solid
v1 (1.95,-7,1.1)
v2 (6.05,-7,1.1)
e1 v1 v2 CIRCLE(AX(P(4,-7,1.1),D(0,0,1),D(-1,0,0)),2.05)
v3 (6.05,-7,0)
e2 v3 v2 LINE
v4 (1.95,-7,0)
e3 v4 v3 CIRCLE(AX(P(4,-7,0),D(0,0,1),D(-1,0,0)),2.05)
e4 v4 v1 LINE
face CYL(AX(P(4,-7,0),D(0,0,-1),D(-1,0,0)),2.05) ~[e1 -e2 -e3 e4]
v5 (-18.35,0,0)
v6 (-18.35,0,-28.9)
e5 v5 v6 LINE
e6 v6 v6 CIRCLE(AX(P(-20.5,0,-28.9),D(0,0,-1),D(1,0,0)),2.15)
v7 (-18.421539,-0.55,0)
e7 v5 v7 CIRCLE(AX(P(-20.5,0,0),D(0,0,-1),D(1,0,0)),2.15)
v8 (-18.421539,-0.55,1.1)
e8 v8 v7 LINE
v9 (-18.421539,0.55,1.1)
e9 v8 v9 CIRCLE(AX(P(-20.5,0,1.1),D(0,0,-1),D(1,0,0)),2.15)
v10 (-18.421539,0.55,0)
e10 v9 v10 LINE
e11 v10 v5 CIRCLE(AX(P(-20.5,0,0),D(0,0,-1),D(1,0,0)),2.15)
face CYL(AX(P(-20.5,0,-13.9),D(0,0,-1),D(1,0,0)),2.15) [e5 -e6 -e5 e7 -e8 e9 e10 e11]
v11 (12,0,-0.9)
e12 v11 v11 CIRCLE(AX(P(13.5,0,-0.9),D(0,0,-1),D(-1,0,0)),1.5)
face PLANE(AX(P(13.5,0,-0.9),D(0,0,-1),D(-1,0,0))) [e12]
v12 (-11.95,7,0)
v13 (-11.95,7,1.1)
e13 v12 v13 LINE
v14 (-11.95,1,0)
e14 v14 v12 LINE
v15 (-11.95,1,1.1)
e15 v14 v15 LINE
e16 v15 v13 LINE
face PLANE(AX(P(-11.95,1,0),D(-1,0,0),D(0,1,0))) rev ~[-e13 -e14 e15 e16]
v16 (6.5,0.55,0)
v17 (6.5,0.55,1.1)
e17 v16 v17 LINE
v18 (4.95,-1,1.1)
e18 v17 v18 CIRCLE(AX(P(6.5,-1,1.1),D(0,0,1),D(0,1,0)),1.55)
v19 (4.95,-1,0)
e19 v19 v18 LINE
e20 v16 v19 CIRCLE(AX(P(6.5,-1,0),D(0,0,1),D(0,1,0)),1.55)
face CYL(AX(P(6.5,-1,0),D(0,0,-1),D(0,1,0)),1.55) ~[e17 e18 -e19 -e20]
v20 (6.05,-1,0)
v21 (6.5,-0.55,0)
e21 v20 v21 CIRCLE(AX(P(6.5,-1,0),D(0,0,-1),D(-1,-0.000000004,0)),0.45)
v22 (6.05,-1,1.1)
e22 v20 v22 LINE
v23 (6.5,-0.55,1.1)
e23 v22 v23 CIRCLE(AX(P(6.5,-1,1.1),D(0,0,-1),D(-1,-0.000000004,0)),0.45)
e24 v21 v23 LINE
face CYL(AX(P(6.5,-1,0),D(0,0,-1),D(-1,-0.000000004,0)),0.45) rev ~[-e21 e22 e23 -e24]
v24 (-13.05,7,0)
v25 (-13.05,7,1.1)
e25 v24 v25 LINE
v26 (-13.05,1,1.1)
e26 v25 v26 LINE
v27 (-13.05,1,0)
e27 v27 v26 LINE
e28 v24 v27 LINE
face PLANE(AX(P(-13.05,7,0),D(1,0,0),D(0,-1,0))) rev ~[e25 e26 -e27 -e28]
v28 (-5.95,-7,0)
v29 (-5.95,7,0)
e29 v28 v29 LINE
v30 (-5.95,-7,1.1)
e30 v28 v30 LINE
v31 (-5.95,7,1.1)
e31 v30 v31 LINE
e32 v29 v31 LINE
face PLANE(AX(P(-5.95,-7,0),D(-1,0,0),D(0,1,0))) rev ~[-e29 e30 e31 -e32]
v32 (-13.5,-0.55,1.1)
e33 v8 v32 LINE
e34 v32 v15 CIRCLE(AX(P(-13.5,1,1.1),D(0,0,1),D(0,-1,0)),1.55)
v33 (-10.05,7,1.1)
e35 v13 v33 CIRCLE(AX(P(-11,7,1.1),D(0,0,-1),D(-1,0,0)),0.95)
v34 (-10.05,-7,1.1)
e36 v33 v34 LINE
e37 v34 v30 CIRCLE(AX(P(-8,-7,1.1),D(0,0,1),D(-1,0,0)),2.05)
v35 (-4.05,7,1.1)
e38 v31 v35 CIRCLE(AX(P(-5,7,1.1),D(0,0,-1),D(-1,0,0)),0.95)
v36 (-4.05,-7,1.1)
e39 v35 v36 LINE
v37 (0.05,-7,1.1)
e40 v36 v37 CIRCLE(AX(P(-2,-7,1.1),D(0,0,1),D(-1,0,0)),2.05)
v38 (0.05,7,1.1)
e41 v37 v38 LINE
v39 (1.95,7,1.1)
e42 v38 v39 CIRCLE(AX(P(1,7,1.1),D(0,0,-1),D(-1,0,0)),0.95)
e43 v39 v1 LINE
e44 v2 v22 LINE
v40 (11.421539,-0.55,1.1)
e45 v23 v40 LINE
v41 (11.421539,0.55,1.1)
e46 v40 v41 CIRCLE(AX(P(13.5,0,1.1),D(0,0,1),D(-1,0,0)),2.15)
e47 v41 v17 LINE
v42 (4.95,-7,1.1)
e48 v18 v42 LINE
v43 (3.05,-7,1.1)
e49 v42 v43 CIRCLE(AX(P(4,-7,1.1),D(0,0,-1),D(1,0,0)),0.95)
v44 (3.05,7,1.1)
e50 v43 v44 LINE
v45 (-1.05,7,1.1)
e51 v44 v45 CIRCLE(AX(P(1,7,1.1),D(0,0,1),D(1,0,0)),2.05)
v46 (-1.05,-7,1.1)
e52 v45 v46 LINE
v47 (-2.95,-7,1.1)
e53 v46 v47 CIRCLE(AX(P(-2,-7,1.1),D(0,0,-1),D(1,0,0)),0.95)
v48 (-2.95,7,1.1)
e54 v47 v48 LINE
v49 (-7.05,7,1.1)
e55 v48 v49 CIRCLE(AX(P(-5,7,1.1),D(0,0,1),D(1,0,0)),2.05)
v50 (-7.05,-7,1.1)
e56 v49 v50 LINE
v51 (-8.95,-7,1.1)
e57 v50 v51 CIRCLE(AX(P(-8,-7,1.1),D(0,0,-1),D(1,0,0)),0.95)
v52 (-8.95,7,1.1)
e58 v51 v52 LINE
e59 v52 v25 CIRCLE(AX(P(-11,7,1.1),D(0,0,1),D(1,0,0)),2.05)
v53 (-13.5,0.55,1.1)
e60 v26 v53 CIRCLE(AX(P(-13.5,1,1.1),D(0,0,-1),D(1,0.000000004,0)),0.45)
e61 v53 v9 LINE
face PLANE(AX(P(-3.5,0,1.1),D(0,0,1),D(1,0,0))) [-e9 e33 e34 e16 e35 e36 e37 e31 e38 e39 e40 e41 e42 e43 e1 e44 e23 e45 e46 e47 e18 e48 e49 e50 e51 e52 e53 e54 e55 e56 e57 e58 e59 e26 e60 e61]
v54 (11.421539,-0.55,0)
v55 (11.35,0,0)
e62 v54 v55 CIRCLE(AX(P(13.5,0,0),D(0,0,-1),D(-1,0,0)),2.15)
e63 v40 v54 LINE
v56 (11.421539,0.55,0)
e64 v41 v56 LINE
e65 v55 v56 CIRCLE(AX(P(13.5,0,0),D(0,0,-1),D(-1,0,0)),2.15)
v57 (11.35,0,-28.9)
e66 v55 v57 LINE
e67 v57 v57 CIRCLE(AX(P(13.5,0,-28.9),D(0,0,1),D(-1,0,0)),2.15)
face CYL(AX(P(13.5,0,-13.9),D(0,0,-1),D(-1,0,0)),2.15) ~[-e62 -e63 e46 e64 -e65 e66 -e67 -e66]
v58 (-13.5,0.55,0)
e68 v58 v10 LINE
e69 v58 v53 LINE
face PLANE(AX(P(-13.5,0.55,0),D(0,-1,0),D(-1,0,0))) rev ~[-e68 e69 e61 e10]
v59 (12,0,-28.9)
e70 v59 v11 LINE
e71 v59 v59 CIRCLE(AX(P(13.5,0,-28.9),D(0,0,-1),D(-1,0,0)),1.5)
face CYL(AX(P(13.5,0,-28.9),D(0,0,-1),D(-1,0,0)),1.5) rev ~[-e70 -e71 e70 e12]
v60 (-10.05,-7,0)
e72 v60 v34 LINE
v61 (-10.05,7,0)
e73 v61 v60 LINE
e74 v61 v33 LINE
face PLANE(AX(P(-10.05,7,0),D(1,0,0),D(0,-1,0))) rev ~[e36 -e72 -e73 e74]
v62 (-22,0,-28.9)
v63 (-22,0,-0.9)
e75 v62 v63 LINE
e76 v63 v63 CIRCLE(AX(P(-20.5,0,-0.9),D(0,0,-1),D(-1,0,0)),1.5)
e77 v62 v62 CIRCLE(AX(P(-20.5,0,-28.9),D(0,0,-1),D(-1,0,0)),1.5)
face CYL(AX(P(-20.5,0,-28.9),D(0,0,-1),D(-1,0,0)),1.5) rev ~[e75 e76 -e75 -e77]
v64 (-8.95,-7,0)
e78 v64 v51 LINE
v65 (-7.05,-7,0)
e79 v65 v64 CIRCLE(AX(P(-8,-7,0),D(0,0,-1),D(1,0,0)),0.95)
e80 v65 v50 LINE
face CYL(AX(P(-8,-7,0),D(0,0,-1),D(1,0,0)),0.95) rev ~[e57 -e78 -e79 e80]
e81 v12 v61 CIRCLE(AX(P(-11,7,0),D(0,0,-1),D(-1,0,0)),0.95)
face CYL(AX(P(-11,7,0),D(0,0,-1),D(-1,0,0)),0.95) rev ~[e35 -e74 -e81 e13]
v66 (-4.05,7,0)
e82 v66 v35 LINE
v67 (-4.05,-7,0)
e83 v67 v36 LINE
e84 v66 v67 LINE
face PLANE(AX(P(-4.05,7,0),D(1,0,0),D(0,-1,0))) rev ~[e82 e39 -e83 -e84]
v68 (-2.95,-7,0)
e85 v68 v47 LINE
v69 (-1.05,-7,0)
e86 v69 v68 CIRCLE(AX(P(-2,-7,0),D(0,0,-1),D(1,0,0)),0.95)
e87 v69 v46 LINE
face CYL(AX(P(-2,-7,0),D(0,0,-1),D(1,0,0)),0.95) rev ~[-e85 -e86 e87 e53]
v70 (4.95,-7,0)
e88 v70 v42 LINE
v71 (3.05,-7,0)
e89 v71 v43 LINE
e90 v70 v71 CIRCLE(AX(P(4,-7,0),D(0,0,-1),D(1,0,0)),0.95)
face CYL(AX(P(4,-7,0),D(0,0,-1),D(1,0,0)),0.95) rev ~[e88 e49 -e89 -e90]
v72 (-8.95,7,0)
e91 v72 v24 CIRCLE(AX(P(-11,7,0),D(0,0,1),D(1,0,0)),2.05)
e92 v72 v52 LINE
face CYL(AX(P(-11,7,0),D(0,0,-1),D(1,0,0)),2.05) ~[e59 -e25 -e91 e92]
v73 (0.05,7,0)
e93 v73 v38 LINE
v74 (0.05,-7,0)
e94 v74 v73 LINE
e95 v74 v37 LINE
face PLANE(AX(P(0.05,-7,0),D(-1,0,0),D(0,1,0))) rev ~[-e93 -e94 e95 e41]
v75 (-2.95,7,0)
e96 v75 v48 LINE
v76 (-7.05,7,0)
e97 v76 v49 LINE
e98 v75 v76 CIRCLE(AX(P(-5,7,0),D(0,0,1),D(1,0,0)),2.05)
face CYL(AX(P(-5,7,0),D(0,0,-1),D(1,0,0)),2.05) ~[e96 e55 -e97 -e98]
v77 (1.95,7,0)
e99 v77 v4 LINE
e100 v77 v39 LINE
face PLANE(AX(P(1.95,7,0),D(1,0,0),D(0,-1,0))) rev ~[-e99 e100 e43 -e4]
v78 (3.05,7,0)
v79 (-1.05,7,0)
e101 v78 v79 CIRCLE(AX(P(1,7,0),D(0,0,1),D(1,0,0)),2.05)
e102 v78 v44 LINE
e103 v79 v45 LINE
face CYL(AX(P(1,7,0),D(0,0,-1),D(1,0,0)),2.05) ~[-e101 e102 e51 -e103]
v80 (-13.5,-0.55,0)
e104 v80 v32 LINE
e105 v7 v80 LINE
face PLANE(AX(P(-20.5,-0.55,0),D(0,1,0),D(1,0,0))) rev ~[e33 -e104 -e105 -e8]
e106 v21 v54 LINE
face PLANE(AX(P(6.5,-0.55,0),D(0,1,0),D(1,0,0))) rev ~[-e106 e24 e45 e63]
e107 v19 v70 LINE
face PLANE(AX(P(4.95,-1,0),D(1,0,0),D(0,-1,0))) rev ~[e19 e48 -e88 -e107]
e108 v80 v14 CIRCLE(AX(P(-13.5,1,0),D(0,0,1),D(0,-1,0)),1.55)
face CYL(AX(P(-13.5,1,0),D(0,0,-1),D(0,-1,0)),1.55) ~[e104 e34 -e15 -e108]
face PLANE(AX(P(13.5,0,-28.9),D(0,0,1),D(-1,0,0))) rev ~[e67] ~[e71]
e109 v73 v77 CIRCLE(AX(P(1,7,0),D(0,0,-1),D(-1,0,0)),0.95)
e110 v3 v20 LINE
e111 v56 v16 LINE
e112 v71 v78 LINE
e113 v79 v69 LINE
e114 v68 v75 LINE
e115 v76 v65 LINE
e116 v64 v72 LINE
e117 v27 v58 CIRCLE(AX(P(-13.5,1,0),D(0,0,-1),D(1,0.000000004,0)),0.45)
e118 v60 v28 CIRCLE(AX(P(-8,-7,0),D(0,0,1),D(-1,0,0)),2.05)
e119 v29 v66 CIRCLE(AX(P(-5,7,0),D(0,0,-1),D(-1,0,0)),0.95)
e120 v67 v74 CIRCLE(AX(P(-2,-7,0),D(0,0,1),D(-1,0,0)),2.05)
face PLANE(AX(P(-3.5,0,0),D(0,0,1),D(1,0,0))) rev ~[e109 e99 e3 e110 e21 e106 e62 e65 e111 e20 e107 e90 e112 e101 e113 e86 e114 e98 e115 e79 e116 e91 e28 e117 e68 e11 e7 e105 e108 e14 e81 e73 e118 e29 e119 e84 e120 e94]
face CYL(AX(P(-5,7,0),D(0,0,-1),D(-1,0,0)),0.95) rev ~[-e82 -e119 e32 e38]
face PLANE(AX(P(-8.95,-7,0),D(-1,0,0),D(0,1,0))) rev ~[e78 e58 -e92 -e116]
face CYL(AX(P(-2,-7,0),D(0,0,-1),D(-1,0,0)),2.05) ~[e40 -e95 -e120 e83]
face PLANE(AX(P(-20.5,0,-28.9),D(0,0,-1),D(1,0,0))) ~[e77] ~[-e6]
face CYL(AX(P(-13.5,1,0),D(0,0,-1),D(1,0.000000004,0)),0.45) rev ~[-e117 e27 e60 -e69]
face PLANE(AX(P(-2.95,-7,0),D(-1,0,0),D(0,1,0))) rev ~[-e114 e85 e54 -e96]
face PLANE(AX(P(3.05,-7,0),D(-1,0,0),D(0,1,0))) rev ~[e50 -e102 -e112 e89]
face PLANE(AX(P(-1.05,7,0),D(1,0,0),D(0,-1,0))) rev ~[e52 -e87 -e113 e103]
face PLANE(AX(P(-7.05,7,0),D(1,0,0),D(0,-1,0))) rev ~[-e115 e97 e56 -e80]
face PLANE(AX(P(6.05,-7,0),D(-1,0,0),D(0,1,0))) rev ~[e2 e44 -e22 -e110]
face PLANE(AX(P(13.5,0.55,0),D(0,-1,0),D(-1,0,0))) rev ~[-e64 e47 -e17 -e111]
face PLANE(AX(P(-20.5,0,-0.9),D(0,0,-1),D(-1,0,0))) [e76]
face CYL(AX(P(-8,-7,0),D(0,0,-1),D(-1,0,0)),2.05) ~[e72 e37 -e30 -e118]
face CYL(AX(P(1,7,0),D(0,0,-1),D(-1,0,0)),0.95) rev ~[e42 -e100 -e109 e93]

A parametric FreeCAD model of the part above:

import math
import FreeCAD as App
import Part
import Sketcher

V = App.Vector
Q = App.Units.Quantity


def add_polygon(sketch, points):
    """Adds a closed chain of lines whose ends are joined by coincident constraints."""
    first, n = sketch.GeometryCount, len(points)
    for a, b in zip(points, points[1:] + points[:1]):
        sketch.addGeometry(Part.LineSegment(App.Vector(*a, 0), App.Vector(*b, 0)), False)
    for i in range(n):
        sketch.addConstraint(Sketcher.Constraint("Coincident", first + i, 2, first + (i + 1) % n, 1))

doc = App.newDocument("Part")
body = doc.addObject("PartDesign::Body", "Body")

sketch1 = body.newObject("Sketcher::SketchObject", "Sketch")
sketch1.AttachmentSupport = (doc.getObject("XY_Plane"), [""])
sketch1.MapMode = "FlatFace"
sketch1.addGeometry(Part.LineSegment(V(-20.5, -0.55, 0), V(-13.5, -0.55, 0)), False)
sketch1.addGeometry(Part.ArcOfCircle(Part.Circle(V(-13.5, 1, 0), V(0, 0, 1), 1.55), math.radians(-90), math.radians(0)), False)
sketch1.addGeometry(Part.LineSegment(V(-11.95, 1, 0), V(-11.95, 7, 0)), False)
sketch1.addGeometry(Part.ArcOfCircle(Part.Circle(V(-11, 7, 0), V(0, 0, 1), 0.95), math.radians(0), math.radians(180)), False)
sketch1.addGeometry(Part.LineSegment(V(-10.05, 7, 0), V(-10.05, -7, 0)), False)
sketch1.addGeometry(Part.ArcOfCircle(Part.Circle(V(-8, -7, 0), V(0, 0, 1), 2.05), math.radians(180), math.radians(360)), False)
sketch1.addGeometry(Part.LineSegment(V(-5.95, -7, 0), V(-5.95, 7, 0)), False)
sketch1.addGeometry(Part.ArcOfCircle(Part.Circle(V(-5, 7, 0), V(0, 0, 1), 0.95), math.radians(0), math.radians(180)), False)
sketch1.addGeometry(Part.LineSegment(V(-4.05, 7, 0), V(-4.05, -7, 0)), False)
sketch1.addGeometry(Part.ArcOfCircle(Part.Circle(V(-2, -7, 0), V(0, 0, 1), 2.05), math.radians(180), math.radians(360)), False)
sketch1.addGeometry(Part.LineSegment(V(0.05, -7, 0), V(0.05, 7, 0)), False)
sketch1.addGeometry(Part.ArcOfCircle(Part.Circle(V(1, 7, 0), V(0, 0, 1), 0.95), math.radians(0), math.radians(180)), False)
sketch1.addGeometry(Part.LineSegment(V(1.95, 7, 0), V(1.95, -7, 0)), False)
sketch1.addGeometry(Part.ArcOfCircle(Part.Circle(V(4, -7, 0), V(0, 0, 1), 2.05), math.radians(180), math.radians(360)), False)
sketch1.addGeometry(Part.LineSegment(V(6.05, -7, 0), V(6.05, -1, 0)), False)
sketch1.addGeometry(Part.ArcOfCircle(Part.Circle(V(6.5, -1, 0), V(0, 0, 1), 0.45), math.radians(90), math.radians(180)), False)
sketch1.addGeometry(Part.LineSegment(V(6.5, -0.55, 0), V(13.5, -0.55, 0)), False)
sketch1.addGeometry(Part.ArcOfCircle(Part.Circle(V(13.5, 0, 0), V(0, 0, 1), 0.55), math.radians(-90), math.radians(90)), False)
sketch1.addGeometry(Part.LineSegment(V(13.5, 0.55, 0), V(6.5, 0.55, 0)), False)
sketch1.addGeometry(Part.ArcOfCircle(Part.Circle(V(6.5, -1, 0), V(0, 0, 1), 1.55), math.radians(90), math.radians(180)), False)
sketch1.addGeometry(Part.LineSegment(V(4.95, -1, 0), V(4.95, -7, 0)), False)
sketch1.addGeometry(Part.ArcOfCircle(Part.Circle(V(4, -7, 0), V(0, 0, 1), 0.95), math.radians(180), math.radians(360)), False)
sketch1.addGeometry(Part.LineSegment(V(3.05, -7, 0), V(3.05, 7, 0)), False)
sketch1.addGeometry(Part.ArcOfCircle(Part.Circle(V(1, 7, 0), V(0, 0, 1), 2.05), math.radians(0), math.radians(180)), False)
sketch1.addGeometry(Part.LineSegment(V(-1.05, 7, 0), V(-1.05, -7, 0)), False)
sketch1.addGeometry(Part.ArcOfCircle(Part.Circle(V(-2, -7, 0), V(0, 0, 1), 0.95), math.radians(180), math.radians(360)), False)
sketch1.addGeometry(Part.LineSegment(V(-2.95, -7, 0), V(-2.95, 7, 0)), False)
sketch1.addGeometry(Part.ArcOfCircle(Part.Circle(V(-5, 7, 0), V(0, 0, 1), 2.05), math.radians(0), math.radians(180)), False)
sketch1.addGeometry(Part.LineSegment(V(-7.05, 7, 0), V(-7.05, -7, 0)), False)
sketch1.addGeometry(Part.ArcOfCircle(Part.Circle(V(-8, -7, 0), V(0, 0, 1), 0.95), math.radians(180), math.radians(360)), False)
sketch1.addGeometry(Part.LineSegment(V(-8.95, -7, 0), V(-8.95, 7, 0)), False)
sketch1.addGeometry(Part.ArcOfCircle(Part.Circle(V(-11, 7, 0), V(0, 0, 1), 2.05), math.radians(0), math.radians(180)), False)
sketch1.addGeometry(Part.LineSegment(V(-13.05, 7, 0), V(-13.05, 1, 0)), False)
sketch1.addGeometry(Part.ArcOfCircle(Part.Circle(V(-13.5, 1, 0), V(0, 0, 1), 0.45), math.radians(-90), math.radians(0)), False)
sketch1.addGeometry(Part.LineSegment(V(-13.5, 0.55, 0), V(-20.5, 0.55, 0)), False)
sketch1.addGeometry(Part.ArcOfCircle(Part.Circle(V(-20.5, 0, 0), V(0, 0, 1), 0.55), math.radians(90), math.radians(270)), False)
sketch1.addConstraint(Sketcher.Constraint("Tangent", 0, 2, 1, 1))
sketch1.addConstraint(Sketcher.Constraint("Tangent", 1, 2, 2, 1))
sketch1.addConstraint(Sketcher.Constraint("Tangent", 2, 2, 3, 2))
sketch1.addConstraint(Sketcher.Constraint("Tangent", 3, 1, 4, 1))
sketch1.addConstraint(Sketcher.Constraint("Tangent", 4, 2, 5, 1))
sketch1.addConstraint(Sketcher.Constraint("Tangent", 5, 2, 6, 1))
sketch1.addConstraint(Sketcher.Constraint("Tangent", 6, 2, 7, 2))
sketch1.addConstraint(Sketcher.Constraint("Tangent", 7, 1, 8, 1))
sketch1.addConstraint(Sketcher.Constraint("Tangent", 8, 2, 9, 1))
sketch1.addConstraint(Sketcher.Constraint("Tangent", 9, 2, 10, 1))
sketch1.addConstraint(Sketcher.Constraint("Tangent", 10, 2, 11, 2))
sketch1.addConstraint(Sketcher.Constraint("Tangent", 11, 1, 12, 1))
sketch1.addConstraint(Sketcher.Constraint("Tangent", 12, 2, 13, 1))
sketch1.addConstraint(Sketcher.Constraint("Tangent", 13, 2, 14, 1))
sketch1.addConstraint(Sketcher.Constraint("Tangent", 14, 2, 15, 2))
sketch1.addConstraint(Sketcher.Constraint("Tangent", 15, 1, 16, 1))
sketch1.addConstraint(Sketcher.Constraint("Tangent", 16, 2, 17, 1))
sketch1.addConstraint(Sketcher.Constraint("Tangent", 17, 2, 18, 1))
sketch1.addConstraint(Sketcher.Constraint("Tangent", 18, 2, 19, 1))
sketch1.addConstraint(Sketcher.Constraint("Tangent", 19, 2, 20, 1))
sketch1.addConstraint(Sketcher.Constraint("Tangent", 20, 2, 21, 2))
sketch1.addConstraint(Sketcher.Constraint("Tangent", 21, 1, 22, 1))
sketch1.addConstraint(Sketcher.Constraint("Tangent", 22, 2, 23, 1))
sketch1.addConstraint(Sketcher.Constraint("Tangent", 23, 2, 24, 1))
sketch1.addConstraint(Sketcher.Constraint("Tangent", 24, 2, 25, 2))
sketch1.addConstraint(Sketcher.Constraint("Tangent", 25, 1, 26, 1))
sketch1.addConstraint(Sketcher.Constraint("Tangent", 26, 2, 27, 1))
sketch1.addConstraint(Sketcher.Constraint("Tangent", 27, 2, 28, 1))
sketch1.addConstraint(Sketcher.Constraint("Tangent", 28, 2, 29, 2))
sketch1.addConstraint(Sketcher.Constraint("Tangent", 29, 1, 30, 1))
sketch1.addConstraint(Sketcher.Constraint("Tangent", 30, 2, 31, 1))
sketch1.addConstraint(Sketcher.Constraint("Tangent", 31, 2, 32, 1))
sketch1.addConstraint(Sketcher.Constraint("Tangent", 32, 2, 33, 2))
sketch1.addConstraint(Sketcher.Constraint("Tangent", 33, 1, 34, 1))
sketch1.addConstraint(Sketcher.Constraint("Tangent", 34, 2, 35, 1))
sketch1.addConstraint(Sketcher.Constraint("Tangent", 35, 2, 0, 1))
sketch1.addConstraint(Sketcher.Constraint("Horizontal", 0))
sketch1.addConstraint(Sketcher.Constraint("Vertical", 2))
sketch1.addConstraint(Sketcher.Constraint("Vertical", 4))
sketch1.addConstraint(Sketcher.Constraint("Vertical", 6))
sketch1.addConstraint(Sketcher.Constraint("Vertical", 8))
sketch1.addConstraint(Sketcher.Constraint("Vertical", 10))
sketch1.addConstraint(Sketcher.Constraint("Vertical", 12))
sketch1.addConstraint(Sketcher.Constraint("Vertical", 14))
sketch1.addConstraint(Sketcher.Constraint("Horizontal", 16))
sketch1.addConstraint(Sketcher.Constraint("Horizontal", 18))
sketch1.addConstraint(Sketcher.Constraint("Vertical", 20))
sketch1.addConstraint(Sketcher.Constraint("Vertical", 22))
sketch1.addConstraint(Sketcher.Constraint("Vertical", 24))
sketch1.addConstraint(Sketcher.Constraint("Vertical", 26))
sketch1.addConstraint(Sketcher.Constraint("Vertical", 28))
sketch1.addConstraint(Sketcher.Constraint("Vertical", 30))
sketch1.addConstraint(Sketcher.Constraint("Vertical", 32))
sketch1.addConstraint(Sketcher.Constraint("Horizontal", 34))
sketch1.addConstraint(Sketcher.Constraint("Coincident", 19, 3, 15, 3))
sketch1.addConstraint(Sketcher.Constraint("Coincident", 21, 3, 13, 3))
sketch1.addConstraint(Sketcher.Constraint("Coincident", 23, 3, 11, 3))
sketch1.addConstraint(Sketcher.Constraint("Coincident", 25, 3, 9, 3))
sketch1.addConstraint(Sketcher.Constraint("Coincident", 27, 3, 7, 3))
sketch1.addConstraint(Sketcher.Constraint("Coincident", 29, 3, 5, 3))
sketch1.addConstraint(Sketcher.Constraint("Coincident", 31, 3, 3, 3))
sketch1.addConstraint(Sketcher.Constraint("Coincident", 33, 3, 1, 3))
sketch1.addConstraint(Sketcher.Constraint("Equal", 3, 7))
sketch1.addConstraint(Sketcher.Constraint("Equal", 5, 9))
sketch1.addConstraint(Sketcher.Constraint("Equal", 7, 11))
sketch1.addConstraint(Sketcher.Constraint("Equal", 9, 13))
sketch1.addConstraint(Sketcher.Constraint("Equal", 1, 19))
sketch1.addConstraint(Sketcher.Constraint("Equal", 11, 21))
sketch1.addConstraint(Sketcher.Constraint("Symmetric", 0, 2, 17, 2, -1, 1))
sketch1.addConstraint(Sketcher.Constraint("PointOnObject", 17, 3, -1))
sketch1.addConstraint(Sketcher.Constraint("Horizontal", 3, 3, 7, 3))
sketch1.addConstraint(Sketcher.Constraint("Horizontal", 5, 3, 9, 3))
sketch1.addConstraint(Sketcher.Constraint("Horizontal", 7, 3, 11, 3))
sketch1.addConstraint(Sketcher.Constraint("Horizontal", 9, 3, 13, 3))
sketch1.addConstraint(Sketcher.Constraint("Equal", 0, 16))
sketch1.addConstraint(Sketcher.Constraint("Equal", 2, 14))
sketch1.addConstraint(Sketcher.Constraint("DistanceX", 0, 1, 0, 2, Q("7 mm")))
sketch1.addConstraint(Sketcher.Constraint("DistanceY", 2, 1, 2, 2, Q("6 mm")))
sketch1.addConstraint(Sketcher.Constraint("DistanceY", 4, 2, 4, 1, Q("14 mm")))
sketch1.addConstraint(Sketcher.Constraint("Radius", 1, Q("1.55 mm")))
sketch1.addConstraint(Sketcher.Constraint("Radius", 3, Q("0.95 mm")))
pad1 = body.newObject("PartDesign::Pad", "Pad")
pad1.Profile = sketch1
pad1.Length = 1.1

sketch2 = body.newObject("Sketcher::SketchObject", "Sketch001")
sketch2.AttachmentSupport = (doc.getObject("XZ_Plane"), [""])
sketch2.MapMode = "FlatFace"
add_polygon(sketch2, [(-20.5, -28.9), (-20.5, 1.1), (-22.6, 1.1), (-22.6, -28.9)])
sketch2.addGeometry(Part.LineSegment(V(-20.5, 1.1, 0), V(-20.5, -28.9, 0)), True)
sketch2.addConstraint(Sketcher.Constraint("Vertical", 0))
sketch2.addConstraint(Sketcher.Constraint("Horizontal", 1))
sketch2.addConstraint(Sketcher.Constraint("Vertical", 2))
sketch2.addConstraint(Sketcher.Constraint("Horizontal", 3))
sketch2.addConstraint(Sketcher.Constraint("Vertical", 4))
sketch2.addConstraint(Sketcher.Constraint("Coincident", 4, 1, 0, 2))
sketch2.addConstraint(Sketcher.Constraint("Horizontal", 2, 2, 4, 2))
sketch2.addConstraint(Sketcher.Constraint("DistanceY", 0, 1, 0, 2, Q("30 mm")))
sketch2.addConstraint(Sketcher.Constraint("DistanceX", 1, 2, 1, 1, Q("2.15 mm")))
sketch2.addConstraint(Sketcher.Constraint("DistanceX", 0, 2, -1, 1, Q("20.5 mm")))
sketch2.addConstraint(Sketcher.Constraint("DistanceY", -1, 1, 0, 2, Q("1.1 mm")))
revolution = body.newObject("PartDesign::Revolution", "Revolution")
revolution.Profile = sketch2
revolution.ReferenceAxis = (sketch2, ["Axis0"])
revolution.Angle = 360

sketch3 = body.newObject("Sketcher::SketchObject", "Sketch002")
sketch3.AttachmentSupport = (doc.getObject("XZ_Plane"), [""])
sketch3.MapMode = "FlatFace"
add_polygon(sketch3, [(15.7, -28.9), (15.7, 1.1), (13.5, 1.1), (13.5, -28.9)])
sketch3.addGeometry(Part.LineSegment(V(13.5, -28.9, 0), V(13.5, 1.1, 0)), True)
sketch3.addConstraint(Sketcher.Constraint("Vertical", 0))
sketch3.addConstraint(Sketcher.Constraint("Horizontal", 1))
sketch3.addConstraint(Sketcher.Constraint("Vertical", 2))
sketch3.addConstraint(Sketcher.Constraint("Horizontal", 3))
sketch3.addConstraint(Sketcher.Constraint("Vertical", 4))
sketch3.addConstraint(Sketcher.Constraint("Coincident", 4, 1, 2, 2))
sketch3.addConstraint(Sketcher.Constraint("Horizontal", 0, 2, 4, 2))
sketch3.addConstraint(Sketcher.Constraint("DistanceY", 0, 1, 0, 2, Q("30 mm")))
sketch3.addConstraint(Sketcher.Constraint("DistanceX", 1, 2, 1, 1, Q("2.15 mm")))
sketch3.addConstraint(Sketcher.Constraint("DistanceY", -1, 1, 0, 2, Q("1.1 mm")))
sketch3.addConstraint(Sketcher.Constraint("DistanceX", -1, 1, 1, 2, Q("13.5 mm")))
revolution2 = body.newObject("PartDesign::Revolution", "Revolution001")
revolution2.Profile = sketch3
revolution2.ReferenceAxis = (sketch3, ["Axis0"])
revolution2.Angle = 360

sketch4 = body.newObject("Sketcher::SketchObject", "Sketch003")
sketch4.AttachmentSupport = (doc.getObject("XY_Plane"), [""])
sketch4.MapMode = "FlatFace"
sketch4.AttachmentOffset = App.Placement(V(0, 0, -28.9), App.Rotation())
sketch4.addGeometry(Part.Circle(V(-20.5, 0, 0), V(0, 0, 1), 1.5), False)
sketch4.addGeometry(Part.Circle(V(13.5, 0, 0), V(0, 0, 1), 1.5), False)
sketch4.addConstraint(Sketcher.Constraint("Equal", 0, 1))
sketch4.addConstraint(Sketcher.Constraint("PointOnObject", 0, 3, -1))
sketch4.addConstraint(Sketcher.Constraint("PointOnObject", 1, 3, -1))
sketch4.addConstraint(Sketcher.Constraint("Diameter", 0, Q("3 mm")))
sketch4.addConstraint(Sketcher.Constraint("DistanceX", 0, 3, 1, 3, Q("34 mm")))
sketch4.addConstraint(Sketcher.Constraint("DistanceX", 0, 3, -1, 1, Q("20.5 mm")))
pocket1 = body.newObject("PartDesign::Pocket", "Pocket")
pocket1.Profile = sketch4
pocket1.Length = 28
pocket1.Reversed = True

doc.recompute()
